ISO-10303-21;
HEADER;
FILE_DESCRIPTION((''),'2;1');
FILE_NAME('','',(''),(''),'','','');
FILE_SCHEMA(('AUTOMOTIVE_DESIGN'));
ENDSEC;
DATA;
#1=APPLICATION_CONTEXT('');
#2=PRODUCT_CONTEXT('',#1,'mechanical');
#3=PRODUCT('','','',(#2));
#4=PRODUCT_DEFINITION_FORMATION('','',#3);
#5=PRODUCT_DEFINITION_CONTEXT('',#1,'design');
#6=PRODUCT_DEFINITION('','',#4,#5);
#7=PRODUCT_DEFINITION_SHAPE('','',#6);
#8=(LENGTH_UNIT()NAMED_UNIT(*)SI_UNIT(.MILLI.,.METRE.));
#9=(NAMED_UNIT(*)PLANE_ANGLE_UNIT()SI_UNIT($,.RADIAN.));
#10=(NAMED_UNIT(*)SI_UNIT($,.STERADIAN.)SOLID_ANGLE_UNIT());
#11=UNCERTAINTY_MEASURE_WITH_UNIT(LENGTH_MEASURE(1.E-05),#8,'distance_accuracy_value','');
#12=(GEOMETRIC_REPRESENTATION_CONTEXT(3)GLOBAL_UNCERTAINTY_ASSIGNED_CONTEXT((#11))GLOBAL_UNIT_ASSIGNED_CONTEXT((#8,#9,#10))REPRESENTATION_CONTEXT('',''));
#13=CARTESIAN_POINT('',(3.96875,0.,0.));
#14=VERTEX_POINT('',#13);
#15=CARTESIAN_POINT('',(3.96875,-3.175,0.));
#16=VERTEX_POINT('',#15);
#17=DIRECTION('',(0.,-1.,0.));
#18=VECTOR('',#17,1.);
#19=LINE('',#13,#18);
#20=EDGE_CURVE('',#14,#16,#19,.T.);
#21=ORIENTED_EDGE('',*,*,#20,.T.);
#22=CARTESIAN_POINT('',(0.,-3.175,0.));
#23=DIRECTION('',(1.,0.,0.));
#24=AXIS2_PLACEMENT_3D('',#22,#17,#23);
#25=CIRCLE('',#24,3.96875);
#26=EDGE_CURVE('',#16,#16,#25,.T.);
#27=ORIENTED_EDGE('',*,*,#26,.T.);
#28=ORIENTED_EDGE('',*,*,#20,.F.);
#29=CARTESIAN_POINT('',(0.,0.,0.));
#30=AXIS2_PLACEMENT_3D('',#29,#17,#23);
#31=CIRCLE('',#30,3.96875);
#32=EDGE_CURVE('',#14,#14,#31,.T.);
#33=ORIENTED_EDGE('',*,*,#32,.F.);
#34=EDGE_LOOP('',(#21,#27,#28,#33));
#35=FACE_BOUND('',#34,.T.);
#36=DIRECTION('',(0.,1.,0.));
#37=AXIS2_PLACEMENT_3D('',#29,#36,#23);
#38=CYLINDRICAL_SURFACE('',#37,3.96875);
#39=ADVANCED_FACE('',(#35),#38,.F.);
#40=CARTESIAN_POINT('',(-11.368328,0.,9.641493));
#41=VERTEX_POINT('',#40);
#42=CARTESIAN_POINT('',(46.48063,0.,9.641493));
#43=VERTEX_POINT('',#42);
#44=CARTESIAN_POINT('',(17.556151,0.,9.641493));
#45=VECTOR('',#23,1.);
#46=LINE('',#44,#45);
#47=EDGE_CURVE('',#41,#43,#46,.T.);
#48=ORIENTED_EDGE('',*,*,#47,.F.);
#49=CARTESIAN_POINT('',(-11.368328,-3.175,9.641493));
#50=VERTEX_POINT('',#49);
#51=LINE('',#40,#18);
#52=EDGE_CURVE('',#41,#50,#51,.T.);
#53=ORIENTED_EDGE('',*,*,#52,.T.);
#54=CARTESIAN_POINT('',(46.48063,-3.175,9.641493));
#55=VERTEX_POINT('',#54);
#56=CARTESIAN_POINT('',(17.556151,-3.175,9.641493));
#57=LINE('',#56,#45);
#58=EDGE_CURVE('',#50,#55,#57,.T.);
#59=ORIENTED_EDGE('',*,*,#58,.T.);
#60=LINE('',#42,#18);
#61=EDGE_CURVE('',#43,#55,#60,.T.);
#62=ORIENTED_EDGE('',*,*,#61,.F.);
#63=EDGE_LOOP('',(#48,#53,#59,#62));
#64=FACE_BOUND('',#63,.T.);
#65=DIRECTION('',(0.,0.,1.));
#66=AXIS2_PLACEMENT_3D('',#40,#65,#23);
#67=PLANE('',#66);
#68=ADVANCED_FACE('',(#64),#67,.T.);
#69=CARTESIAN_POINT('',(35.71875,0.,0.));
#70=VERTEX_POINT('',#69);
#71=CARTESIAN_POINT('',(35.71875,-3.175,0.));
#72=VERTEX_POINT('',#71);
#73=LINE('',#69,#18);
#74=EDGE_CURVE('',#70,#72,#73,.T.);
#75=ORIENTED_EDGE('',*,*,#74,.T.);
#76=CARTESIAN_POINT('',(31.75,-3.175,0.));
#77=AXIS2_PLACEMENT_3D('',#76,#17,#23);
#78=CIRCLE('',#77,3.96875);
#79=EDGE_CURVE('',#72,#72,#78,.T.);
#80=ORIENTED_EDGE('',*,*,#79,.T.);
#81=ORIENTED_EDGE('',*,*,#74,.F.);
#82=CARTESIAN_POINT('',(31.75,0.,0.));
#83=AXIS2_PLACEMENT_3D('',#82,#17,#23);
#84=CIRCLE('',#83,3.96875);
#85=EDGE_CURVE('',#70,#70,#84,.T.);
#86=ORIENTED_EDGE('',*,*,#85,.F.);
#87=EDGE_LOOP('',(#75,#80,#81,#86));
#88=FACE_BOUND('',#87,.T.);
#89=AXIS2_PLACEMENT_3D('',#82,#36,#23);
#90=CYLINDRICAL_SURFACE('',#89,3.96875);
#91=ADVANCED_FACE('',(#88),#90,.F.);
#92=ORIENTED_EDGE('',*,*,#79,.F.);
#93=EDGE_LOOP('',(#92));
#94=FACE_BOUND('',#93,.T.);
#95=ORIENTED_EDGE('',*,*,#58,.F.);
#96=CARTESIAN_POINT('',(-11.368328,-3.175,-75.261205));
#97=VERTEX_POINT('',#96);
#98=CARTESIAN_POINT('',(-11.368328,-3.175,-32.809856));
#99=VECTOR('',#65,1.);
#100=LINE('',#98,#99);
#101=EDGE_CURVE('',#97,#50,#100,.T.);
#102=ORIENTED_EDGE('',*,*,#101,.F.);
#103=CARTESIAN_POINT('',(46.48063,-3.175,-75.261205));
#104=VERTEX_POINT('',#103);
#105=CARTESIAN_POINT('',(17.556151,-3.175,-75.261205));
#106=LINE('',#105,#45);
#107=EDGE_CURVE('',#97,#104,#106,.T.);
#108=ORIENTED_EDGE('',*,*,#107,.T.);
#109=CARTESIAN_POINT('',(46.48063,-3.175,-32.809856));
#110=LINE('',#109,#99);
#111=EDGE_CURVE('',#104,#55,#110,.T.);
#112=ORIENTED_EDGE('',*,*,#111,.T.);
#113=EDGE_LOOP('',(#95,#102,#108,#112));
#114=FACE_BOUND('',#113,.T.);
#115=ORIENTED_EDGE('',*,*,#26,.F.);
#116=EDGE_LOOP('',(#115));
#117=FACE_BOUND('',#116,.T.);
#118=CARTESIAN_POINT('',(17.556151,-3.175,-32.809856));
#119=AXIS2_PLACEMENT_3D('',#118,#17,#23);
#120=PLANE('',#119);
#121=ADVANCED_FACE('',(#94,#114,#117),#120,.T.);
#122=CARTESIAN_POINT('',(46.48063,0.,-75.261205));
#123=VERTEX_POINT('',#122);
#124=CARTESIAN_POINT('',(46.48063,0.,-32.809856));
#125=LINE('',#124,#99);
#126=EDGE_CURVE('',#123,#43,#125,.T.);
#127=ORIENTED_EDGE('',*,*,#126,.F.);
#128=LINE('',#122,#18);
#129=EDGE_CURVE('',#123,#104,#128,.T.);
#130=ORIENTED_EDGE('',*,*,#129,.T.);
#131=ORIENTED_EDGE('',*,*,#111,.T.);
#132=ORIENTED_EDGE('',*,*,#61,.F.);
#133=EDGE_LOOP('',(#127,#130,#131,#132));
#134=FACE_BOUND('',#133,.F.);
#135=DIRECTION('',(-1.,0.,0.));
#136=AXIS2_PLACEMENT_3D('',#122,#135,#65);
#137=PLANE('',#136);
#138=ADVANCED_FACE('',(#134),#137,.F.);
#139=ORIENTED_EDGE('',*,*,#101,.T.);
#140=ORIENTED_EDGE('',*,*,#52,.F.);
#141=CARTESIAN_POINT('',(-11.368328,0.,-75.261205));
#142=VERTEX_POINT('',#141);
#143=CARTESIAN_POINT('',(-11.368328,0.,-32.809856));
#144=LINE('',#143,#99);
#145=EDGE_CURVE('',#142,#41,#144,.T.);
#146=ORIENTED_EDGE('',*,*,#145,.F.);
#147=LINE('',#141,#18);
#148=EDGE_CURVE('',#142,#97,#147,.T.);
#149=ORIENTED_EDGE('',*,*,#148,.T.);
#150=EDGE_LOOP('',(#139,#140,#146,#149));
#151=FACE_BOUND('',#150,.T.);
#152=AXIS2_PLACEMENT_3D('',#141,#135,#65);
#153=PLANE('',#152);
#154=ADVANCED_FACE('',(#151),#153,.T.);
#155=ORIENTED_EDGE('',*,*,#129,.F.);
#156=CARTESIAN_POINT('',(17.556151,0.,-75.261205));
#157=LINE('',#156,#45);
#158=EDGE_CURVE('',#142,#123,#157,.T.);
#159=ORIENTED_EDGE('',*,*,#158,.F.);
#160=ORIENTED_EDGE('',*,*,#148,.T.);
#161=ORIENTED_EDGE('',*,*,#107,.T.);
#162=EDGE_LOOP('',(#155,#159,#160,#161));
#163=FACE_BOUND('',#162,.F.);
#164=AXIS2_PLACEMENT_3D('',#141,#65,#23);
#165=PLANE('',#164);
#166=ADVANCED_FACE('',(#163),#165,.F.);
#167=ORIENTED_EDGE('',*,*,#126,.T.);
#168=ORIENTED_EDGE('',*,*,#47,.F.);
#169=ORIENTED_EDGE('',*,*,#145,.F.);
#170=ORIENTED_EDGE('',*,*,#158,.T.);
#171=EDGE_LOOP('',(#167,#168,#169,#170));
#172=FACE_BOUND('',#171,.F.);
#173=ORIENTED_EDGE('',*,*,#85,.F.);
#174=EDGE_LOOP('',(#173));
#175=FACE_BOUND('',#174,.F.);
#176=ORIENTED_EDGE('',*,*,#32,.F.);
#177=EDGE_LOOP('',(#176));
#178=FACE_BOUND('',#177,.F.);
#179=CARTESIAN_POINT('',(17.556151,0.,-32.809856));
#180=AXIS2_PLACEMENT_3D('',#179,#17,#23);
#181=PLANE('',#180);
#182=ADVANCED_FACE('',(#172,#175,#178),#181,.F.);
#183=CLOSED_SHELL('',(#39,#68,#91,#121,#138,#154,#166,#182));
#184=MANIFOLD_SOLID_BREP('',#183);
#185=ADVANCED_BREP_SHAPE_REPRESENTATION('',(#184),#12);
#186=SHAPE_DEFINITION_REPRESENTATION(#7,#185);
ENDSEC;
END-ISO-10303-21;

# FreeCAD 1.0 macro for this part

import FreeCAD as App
import Part
import Sketcher
Q = App.Units.Quantity


def add_polygon(sketch, points):
    """Adds a closed chain of lines whose ends are joined by coincident constraints."""
    first, n = sketch.GeometryCount, len(points)
    for a, b in zip(points, points[1:] + points[:1]):
        sketch.addGeometry(Part.LineSegment(App.Vector(*a, 0), App.Vector(*b, 0)), False)
    for i in range(n):
        sketch.addConstraint(Sketcher.Constraint("Coincident", first + i, 2, first + (i + 1) % n, 1))

doc = App.newDocument("Part")
params = doc.addObject("Spreadsheet::Sheet", "Params")
for row, (alias, value) in enumerate([
    ("sketch1_diameter", "0.3125 in"),
    ("pad1_length", "0.125 in"),
], start=1):
    params.set(f"A{row}", alias)
    params.set(f"B{row}", "=" + value)
    params.setAlias(f"B{row}", alias)

body = doc.addObject("PartDesign::Body", "Body")

# Sketch on XZ plane
sketch1 = body.newObject("Sketcher::SketchObject", "Sketch")
sketch1.AttachmentSupport = (doc.getObject("XZ_Plane"), [""])
sketch1.MapMode = "FlatFace"
add_polygon(sketch1, [(-11.368328, 9.641493), (-11.368328, -75.261205), (46.48063, -75.261205), (46.48063, 9.641493)])  # lines 0-3
sketch1.addGeometry(Part.Circle(App.Vector(0, 0, 0), App.Vector(0, 0, 1), 3.96875), False)  # 4
sketch1.addGeometry(Part.Circle(App.Vector(31.75, 0, 0), App.Vector(0, 0, 1), 3.96875), False)  # 5
sketch1.addConstraint([
    Sketcher.Constraint("Vertical", 0),
    Sketcher.Constraint("Horizontal", 1),
    Sketcher.Constraint("Vertical", 2),
    Sketcher.Constraint("Horizontal", 3),
    Sketcher.Constraint("Coincident", 4, 3, -1, 1),
    Sketcher.Constraint("Equal", 4, 5),
    Sketcher.Constraint("PointOnObject", 5, 3, -1),
    Sketcher.Constraint("Diameter", 4, Q("0.3125 in")),
    Sketcher.Constraint("DistanceX", -1, 1, 5, 3, Q("1.25 in")),
    Sketcher.Constraint("DistanceY", 0, 2, 0, 1, 84.902698),
    Sketcher.Constraint("DistanceX", 1, 1, 1, 2, 57.848958),
    Sketcher.Constraint("DistanceX", -1, 1, 1, 2, 46.48063),
    Sketcher.Constraint("DistanceY", 0, 2, -1, 1, 75.261205),
])
sketch1.setExpression("Constraints[11]", "Params.sketch1_diameter")
pad1 = body.newObject("PartDesign::Pad", "Pad")
pad1.Profile = sketch1
pad1.setExpression("Length", "Params.pad1_length")

doc.recompute()
